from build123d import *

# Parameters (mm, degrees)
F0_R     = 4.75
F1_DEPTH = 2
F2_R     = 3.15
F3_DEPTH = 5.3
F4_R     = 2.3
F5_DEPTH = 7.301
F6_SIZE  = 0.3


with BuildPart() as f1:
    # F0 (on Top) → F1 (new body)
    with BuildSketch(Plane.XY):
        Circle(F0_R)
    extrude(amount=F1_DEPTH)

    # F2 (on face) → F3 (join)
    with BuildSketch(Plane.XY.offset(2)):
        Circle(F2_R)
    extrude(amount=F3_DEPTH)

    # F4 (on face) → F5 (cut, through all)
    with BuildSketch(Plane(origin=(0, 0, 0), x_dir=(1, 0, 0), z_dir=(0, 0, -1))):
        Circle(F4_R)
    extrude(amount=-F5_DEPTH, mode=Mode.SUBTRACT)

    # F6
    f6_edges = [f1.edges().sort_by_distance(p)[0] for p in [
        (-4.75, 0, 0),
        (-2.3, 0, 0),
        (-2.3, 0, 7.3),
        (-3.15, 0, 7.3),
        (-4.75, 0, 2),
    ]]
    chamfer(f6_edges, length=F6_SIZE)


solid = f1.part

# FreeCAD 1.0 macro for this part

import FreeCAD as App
import Part
import Sketcher
from FreeCAD import Vector
Q = App.Units.Quantity


def edges_at(feature, points):
    """Names of the edges that pass closest to the given points."""
    edges = feature.Shape.Edges
    near = lambda p: min(range(len(edges)), key=lambda i: edges[i].distToShape(Part.Vertex(*p))[0])
    return sorted({f"Edge{near(p) + 1}" for p in points})

doc = App.newDocument("Part")
body = doc.addObject("PartDesign::Body", "Body")

sketch1 = doc.addObject("Sketcher::SketchObject", "Sketch")
body.addObject(sketch1)
sketch1.AttachmentSupport = (doc.XY_Plane, [""])
sketch1.MapMode = "FlatFace"
sketch1.addGeometry(Part.Circle(Vector(0, 0, 0), Vector(0, 0, 1), 4.8), False)
sketch1.addConstraint(Sketcher.Constraint("Coincident", 0, 3, -1, 1))
sketch1.addConstraint(Sketcher.Constraint("Diameter", 0, Q("9.5 mm")))
pad1 = doc.addObject("PartDesign::Pad", "Pad")
body.addObject(pad1)
pad1.Profile = sketch1
pad1.Length = 2

sketch2 = doc.addObject("Sketcher::SketchObject", "Sketch001")
body.addObject(sketch2)
sketch2.AttachmentSupport = (doc.XY_Plane, [""])
sketch2.MapMode = "FlatFace"
sketch2.AttachmentOffset = App.Placement(Vector(0, 0, 2), App.Rotation())
sketch2.addGeometry(Part.Circle(Vector(0, 0, 0), Vector(0, 0, 1), 3.1), False)
sketch2.addConstraint(Sketcher.Constraint("Coincident", 0, 3, -1, 1))
sketch2.addConstraint(Sketcher.Constraint("Diameter", 0, Q("6.3 mm")))
pad2 = doc.addObject("PartDesign::Pad", "Pad001")
body.addObject(pad2)
pad2.Profile = sketch2
pad2.Length = 5.3

sketch3 = doc.addObject("Sketcher::SketchObject", "Sketch002")
body.addObject(sketch3)
sketch3.AttachmentSupport = (doc.XY_Plane, [""])
sketch3.MapMode = "FlatFace"
sketch3.addGeometry(Part.Circle(Vector(0, 0, 0), Vector(0, 0, 1), 2.3), False)
sketch3.addConstraint(Sketcher.Constraint("Coincident", 0, 3, -1, 1))
sketch3.addConstraint(Sketcher.Constraint("Diameter", 0, Q("4.6 mm")))
pocket1 = doc.addObject("PartDesign::Pocket", "Pocket")
body.addObject(pocket1)
pocket1.Profile = sketch3
pocket1.Type = "ThroughAll"
pocket1.Reversed = True
doc.recompute()

chamfer = doc.addObject("PartDesign::Chamfer", "Chamfer")
body.addObject(chamfer)
chamfer.Base = (pocket1, edges_at(pocket1, [
    (-4.75, 0, 0),
    (-2.3, 0, 0),
    (-2.3, 0, 7.3),
    (-3.15, 0, 7.3),
    (-4.75, 0, 2),
]))
chamfer.Size = 0.3

doc.recompute()
